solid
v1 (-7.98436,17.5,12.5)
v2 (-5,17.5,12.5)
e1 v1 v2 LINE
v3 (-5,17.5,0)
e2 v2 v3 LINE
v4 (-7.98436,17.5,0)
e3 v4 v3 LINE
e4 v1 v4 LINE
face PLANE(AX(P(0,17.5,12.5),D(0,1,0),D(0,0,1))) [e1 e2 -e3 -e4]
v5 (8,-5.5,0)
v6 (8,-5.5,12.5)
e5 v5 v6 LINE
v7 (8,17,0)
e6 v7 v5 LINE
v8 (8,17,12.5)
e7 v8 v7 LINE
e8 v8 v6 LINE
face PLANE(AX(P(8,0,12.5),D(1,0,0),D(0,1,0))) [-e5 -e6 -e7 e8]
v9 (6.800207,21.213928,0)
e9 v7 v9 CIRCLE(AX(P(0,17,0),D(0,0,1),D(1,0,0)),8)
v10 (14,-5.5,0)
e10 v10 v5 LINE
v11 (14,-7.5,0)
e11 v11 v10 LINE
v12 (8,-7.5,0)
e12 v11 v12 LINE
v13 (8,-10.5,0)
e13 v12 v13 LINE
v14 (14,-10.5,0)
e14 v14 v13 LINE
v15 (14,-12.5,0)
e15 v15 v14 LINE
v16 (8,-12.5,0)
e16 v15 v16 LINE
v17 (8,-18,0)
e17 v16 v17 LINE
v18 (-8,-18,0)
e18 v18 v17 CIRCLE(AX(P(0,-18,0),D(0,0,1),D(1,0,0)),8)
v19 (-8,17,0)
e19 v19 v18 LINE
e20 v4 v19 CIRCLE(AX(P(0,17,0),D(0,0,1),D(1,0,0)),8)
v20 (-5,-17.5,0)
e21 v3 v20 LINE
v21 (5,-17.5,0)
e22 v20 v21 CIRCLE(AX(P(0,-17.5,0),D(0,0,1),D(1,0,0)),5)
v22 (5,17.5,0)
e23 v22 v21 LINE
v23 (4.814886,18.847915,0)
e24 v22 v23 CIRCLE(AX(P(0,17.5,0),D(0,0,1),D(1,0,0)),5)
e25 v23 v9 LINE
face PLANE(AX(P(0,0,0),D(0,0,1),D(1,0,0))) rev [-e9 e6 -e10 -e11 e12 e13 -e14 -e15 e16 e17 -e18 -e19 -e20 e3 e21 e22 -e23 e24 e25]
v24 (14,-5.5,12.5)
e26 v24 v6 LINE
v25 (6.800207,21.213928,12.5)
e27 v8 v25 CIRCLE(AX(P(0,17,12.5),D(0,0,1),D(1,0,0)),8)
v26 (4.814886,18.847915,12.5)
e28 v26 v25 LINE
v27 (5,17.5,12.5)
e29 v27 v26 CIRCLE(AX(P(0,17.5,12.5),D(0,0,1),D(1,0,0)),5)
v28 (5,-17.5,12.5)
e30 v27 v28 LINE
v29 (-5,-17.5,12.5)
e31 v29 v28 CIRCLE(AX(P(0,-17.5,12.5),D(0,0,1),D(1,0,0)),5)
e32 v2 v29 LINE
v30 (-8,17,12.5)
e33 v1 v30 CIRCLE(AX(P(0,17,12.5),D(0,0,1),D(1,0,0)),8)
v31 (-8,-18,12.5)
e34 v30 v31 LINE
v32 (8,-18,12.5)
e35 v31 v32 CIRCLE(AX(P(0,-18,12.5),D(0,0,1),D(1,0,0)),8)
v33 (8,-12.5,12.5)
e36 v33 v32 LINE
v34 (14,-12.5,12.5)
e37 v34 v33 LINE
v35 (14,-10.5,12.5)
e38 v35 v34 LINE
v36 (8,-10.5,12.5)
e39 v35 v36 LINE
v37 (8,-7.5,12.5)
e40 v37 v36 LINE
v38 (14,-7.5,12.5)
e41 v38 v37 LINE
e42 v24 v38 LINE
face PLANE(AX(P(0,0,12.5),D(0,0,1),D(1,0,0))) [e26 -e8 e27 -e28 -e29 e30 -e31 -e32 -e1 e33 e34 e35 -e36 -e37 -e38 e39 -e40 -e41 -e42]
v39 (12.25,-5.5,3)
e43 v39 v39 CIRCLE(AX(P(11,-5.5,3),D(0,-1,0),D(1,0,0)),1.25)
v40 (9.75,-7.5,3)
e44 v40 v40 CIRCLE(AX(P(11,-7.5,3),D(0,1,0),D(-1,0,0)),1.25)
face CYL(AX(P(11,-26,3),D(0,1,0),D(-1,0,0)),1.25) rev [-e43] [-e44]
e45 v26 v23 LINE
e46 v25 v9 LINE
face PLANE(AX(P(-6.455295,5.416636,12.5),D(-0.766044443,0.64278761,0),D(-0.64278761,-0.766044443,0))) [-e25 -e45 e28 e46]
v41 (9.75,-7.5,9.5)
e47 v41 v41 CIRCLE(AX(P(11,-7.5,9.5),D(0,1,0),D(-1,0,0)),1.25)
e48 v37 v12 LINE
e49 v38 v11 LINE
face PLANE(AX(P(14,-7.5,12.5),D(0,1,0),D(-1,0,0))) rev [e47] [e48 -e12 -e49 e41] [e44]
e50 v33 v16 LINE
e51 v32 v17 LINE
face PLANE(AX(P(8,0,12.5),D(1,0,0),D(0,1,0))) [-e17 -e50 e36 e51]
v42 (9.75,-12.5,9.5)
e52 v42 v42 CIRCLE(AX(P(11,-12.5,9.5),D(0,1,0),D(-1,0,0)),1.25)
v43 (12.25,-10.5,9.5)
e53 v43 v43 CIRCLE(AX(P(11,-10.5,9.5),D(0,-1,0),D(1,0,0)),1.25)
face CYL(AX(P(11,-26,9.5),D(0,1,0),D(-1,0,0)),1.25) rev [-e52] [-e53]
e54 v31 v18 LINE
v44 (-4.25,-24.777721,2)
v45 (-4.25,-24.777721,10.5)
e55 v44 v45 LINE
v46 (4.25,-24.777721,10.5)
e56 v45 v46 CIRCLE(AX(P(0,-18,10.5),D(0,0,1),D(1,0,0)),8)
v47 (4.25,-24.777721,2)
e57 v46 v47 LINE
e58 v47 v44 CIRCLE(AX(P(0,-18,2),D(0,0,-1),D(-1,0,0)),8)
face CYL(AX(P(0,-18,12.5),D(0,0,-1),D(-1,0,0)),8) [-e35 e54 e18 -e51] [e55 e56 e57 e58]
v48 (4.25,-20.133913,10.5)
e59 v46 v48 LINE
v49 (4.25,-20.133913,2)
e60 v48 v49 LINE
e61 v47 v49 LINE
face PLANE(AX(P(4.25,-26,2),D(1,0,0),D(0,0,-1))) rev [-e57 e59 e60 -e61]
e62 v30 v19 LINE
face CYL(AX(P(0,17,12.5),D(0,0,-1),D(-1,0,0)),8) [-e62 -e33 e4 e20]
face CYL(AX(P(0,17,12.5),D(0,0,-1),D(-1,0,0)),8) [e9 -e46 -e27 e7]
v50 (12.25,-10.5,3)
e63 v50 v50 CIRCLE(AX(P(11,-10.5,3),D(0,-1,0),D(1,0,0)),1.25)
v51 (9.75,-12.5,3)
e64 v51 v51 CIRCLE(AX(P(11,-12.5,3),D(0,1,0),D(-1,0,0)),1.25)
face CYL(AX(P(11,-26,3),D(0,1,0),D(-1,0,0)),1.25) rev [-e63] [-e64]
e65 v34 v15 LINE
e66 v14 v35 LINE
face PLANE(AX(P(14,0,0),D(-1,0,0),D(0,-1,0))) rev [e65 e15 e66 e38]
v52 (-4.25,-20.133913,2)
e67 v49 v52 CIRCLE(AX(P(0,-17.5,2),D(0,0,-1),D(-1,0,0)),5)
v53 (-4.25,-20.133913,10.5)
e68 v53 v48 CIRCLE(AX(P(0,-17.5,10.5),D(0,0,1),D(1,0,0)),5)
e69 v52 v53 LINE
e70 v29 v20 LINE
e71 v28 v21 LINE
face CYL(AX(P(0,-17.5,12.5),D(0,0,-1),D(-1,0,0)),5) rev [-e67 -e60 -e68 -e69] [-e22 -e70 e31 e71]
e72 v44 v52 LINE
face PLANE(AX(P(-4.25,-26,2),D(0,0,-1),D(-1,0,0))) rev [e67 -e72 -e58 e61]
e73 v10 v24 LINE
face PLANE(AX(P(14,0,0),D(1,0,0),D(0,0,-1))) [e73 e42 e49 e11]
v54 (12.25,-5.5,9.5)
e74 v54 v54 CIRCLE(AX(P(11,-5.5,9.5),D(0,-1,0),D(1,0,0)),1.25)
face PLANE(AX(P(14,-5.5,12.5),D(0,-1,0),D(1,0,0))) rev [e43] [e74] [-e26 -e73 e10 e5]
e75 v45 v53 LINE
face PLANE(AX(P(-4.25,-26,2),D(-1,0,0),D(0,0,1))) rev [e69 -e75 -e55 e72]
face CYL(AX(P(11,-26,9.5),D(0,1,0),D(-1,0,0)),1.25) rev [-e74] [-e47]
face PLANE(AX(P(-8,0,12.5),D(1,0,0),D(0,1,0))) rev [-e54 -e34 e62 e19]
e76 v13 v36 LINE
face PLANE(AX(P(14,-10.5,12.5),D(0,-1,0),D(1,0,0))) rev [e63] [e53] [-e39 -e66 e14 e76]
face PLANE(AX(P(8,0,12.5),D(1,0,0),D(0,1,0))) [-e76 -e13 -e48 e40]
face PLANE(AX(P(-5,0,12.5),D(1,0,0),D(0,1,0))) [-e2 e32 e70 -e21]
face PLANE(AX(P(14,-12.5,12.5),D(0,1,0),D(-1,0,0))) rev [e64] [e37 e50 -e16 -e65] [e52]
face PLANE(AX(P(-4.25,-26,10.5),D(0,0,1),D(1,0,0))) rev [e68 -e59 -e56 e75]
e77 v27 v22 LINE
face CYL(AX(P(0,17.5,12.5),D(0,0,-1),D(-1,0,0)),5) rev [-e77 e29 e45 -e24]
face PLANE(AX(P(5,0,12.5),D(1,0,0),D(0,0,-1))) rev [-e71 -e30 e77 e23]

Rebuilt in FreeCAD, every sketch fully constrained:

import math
import FreeCAD as App
import Part
import Sketcher

V = App.Vector
Q = App.Units.Quantity


def add_polygon(sketch, points):
    """Adds a closed chain of lines whose ends are joined by coincident constraints."""
    first, n = sketch.GeometryCount, len(points)
    for a, b in zip(points, points[1:] + points[:1]):
        sketch.addGeometry(Part.LineSegment(App.Vector(*a, 0), App.Vector(*b, 0)), False)
    for i in range(n):
        sketch.addConstraint(Sketcher.Constraint("Coincident", first + i, 2, first + (i + 1) % n, 1))

doc = App.newDocument("Part")
params = doc.addObject("Spreadsheet::Sheet", "Params")
for row, (alias, value) in enumerate([
    ("sketch1_radius", "8 mm"),
    ("sketch1_radius2", "5 mm"),
    ("sketch1_height", "35 mm"),
    ("pad1_length", "12.5 mm"),
    ("sketch2_width", "2 mm"),
    ("sketch2_height", "12.5 mm"),
    ("pad2_length", "6 mm"),
    ("sketch3_diameter", "2.5 mm"),
    ("sketch4_width", "8.5 mm"),
], start=1):
    params.set(f"A{row}", alias)
    params.set(f"B{row}", "=" + value)
    params.setAlias(f"B{row}", alias)

body = doc.addObject("PartDesign::Body", "Body")

# Sketch on XY plane
sketch1 = doc.addObject("Sketcher::SketchObject", "Sketch")
body.addObject(sketch1)
sketch1.AttachmentSupport = (doc.XY_Plane, [""])
sketch1.MapMode = "FlatFace"
sketch1.addGeometry([
    Part.ArcOfCircle(Part.Circle(V(0, 17, 0), V(0, 0, 1), 8), math.radians(0), math.radians(32)),  # 0
    Part.LineSegment(V(6.8, 21.2, 0), V(4.8, 18.8, 0)),  # 1
    Part.ArcOfCircle(Part.Circle(V(0, 17.5, 0), V(0, 0, 1), 5), math.radians(0), math.radians(15.64)),  # 2
    Part.LineSegment(V(5, 17.5, 0), V(5, -17.5, 0)),  # 3
    Part.ArcOfCircle(Part.Circle(V(0, -17.5, 0), V(0, 0, 1), 5), math.radians(180), math.radians(360)),  # 4
    Part.LineSegment(V(-5, -17.5, 0), V(-5, 17.5, 0)),  # 5
    Part.LineSegment(V(-5, 17.5, 0), V(-8, 17.5, 0)),  # 6
    Part.ArcOfCircle(Part.Circle(V(0, 17, 0), V(0, 0, 1), 8), math.radians(176.42), math.radians(180)),  # 7
    Part.LineSegment(V(-8, 17, 0), V(-8, -18, 0)),  # 8
    Part.ArcOfCircle(Part.Circle(V(0, -18, 0), V(0, 0, 1), 8), math.radians(180), math.radians(360)),  # 9
    Part.LineSegment(V(8, -18, 0), V(8, 17, 0)),  # 10
], False)
sketch1.addConstraint([
    Sketcher.Constraint("Coincident", 0, 2, 1, 1),
    Sketcher.Constraint("Coincident", 1, 2, 2, 2),
    Sketcher.Constraint("Tangent", 2, 1, 3, 1),
    Sketcher.Constraint("Tangent", 3, 2, 4, 2),
    Sketcher.Constraint("Tangent", 4, 1, 5, 1),
    Sketcher.Constraint("Coincident", 5, 2, 6, 1),
    Sketcher.Constraint("Coincident", 6, 2, 7, 1),
    Sketcher.Constraint("Tangent", 7, 2, 8, 1),
    Sketcher.Constraint("Tangent", 8, 2, 9, 1),
    Sketcher.Constraint("Tangent", 9, 2, 10, 1),
    Sketcher.Constraint("Tangent", 10, 2, 0, 1),
    Sketcher.Constraint("Vertical", 3),
    Sketcher.Constraint("Vertical", 5),
    Sketcher.Constraint("Horizontal", 6),
    Sketcher.Constraint("Vertical", 8),
    Sketcher.Constraint("Vertical", 10),
    Sketcher.Constraint("Coincident", 7, 3, 0, 3),
    Sketcher.Constraint("Equal", 2, 4),
    Sketcher.Constraint("Equal", 0, 7),
    Sketcher.Constraint("Symmetric", 2, 3, 4, 3, -1, 1),
    Sketcher.Constraint("PointOnObject", 0, 3, -2),
    Sketcher.Constraint("Horizontal", 2, 1, 5, 2),
    Sketcher.Constraint("Equal", 5, 8),
    Sketcher.Constraint("Radius", 0, Q("8 mm")),
    Sketcher.Constraint("Radius", 2, Q("5 mm")),
    Sketcher.Constraint("DistanceY", 3, 2, 3, 1, Q("35 mm")),
    Sketcher.Constraint("Angle", 1, Q("-130 deg")),
    Sketcher.Constraint("DistanceY", -1, 1, 0, 3, Q("17 mm")),
    Sketcher.Constraint("Distance", 1, Q("3.088611 mm")),
])
sketch1.setExpression("Constraints[23]", "Params.sketch1_radius")
sketch1.setExpression("Constraints[24]", "Params.sketch1_radius2")
sketch1.setExpression("Constraints[25]", "Params.sketch1_height")
pad1 = doc.addObject("PartDesign::Pad", "Pad")
body.addObject(pad1)
pad1.Profile = sketch1
pad1.setExpression("Length", "Params.pad1_length")

# Sketch on YZ plane
sketch2 = doc.addObject("Sketcher::SketchObject", "Sketch001")
body.addObject(sketch2)
sketch2.AttachmentSupport = (doc.YZ_Plane, [""])
sketch2.MapMode = "FlatFace"
sketch2.AttachmentOffset = App.Placement(V(0, 0, 8), App.Rotation())
add_polygon(sketch2, [(-10.5, 12.5), (-12.5, 12.5), (-12.5, 0), (-10.5, 0)])  # lines 0-3
add_polygon(sketch2, [(-5.5, 12.5), (-7.5, 12.5), (-7.5, 0), (-5.5, 0)])  # lines 4-7
sketch2.addConstraint([
    Sketcher.Constraint("Horizontal", 0),
    Sketcher.Constraint("Vertical", 1),
    Sketcher.Constraint("Horizontal", 2),
    Sketcher.Constraint("Vertical", 3),
    Sketcher.Constraint("Horizontal", 4),
    Sketcher.Constraint("Vertical", 5),
    Sketcher.Constraint("Horizontal", 6),
    Sketcher.Constraint("Vertical", 7),
    Sketcher.Constraint("PointOnObject", 1, 2, -1),
    Sketcher.Constraint("PointOnObject", 5, 2, -1),
    Sketcher.Constraint("Horizontal", 3, 2, 4, 2),
    Sketcher.Constraint("Equal", 2, 4),
    Sketcher.Constraint("DistanceX", 0, 2, 0, 1, Q("2 mm")),
    Sketcher.Constraint("DistanceY", 1, 2, 1, 1, Q("12.5 mm")),
    Sketcher.Constraint("DistanceX", 3, 2, 4, 2, Q("3 mm")),
    Sketcher.Constraint("DistanceX", 0, 2, -1, 1, Q("12.5 mm")),
])
sketch2.setExpression("Constraints[20]", "Params.sketch2_width")
sketch2.setExpression("Constraints[21]", "Params.sketch2_height")
pad2 = doc.addObject("PartDesign::Pad", "Pad001")
body.addObject(pad2)
pad2.Profile = sketch2
pad2.setExpression("Length", "Params.pad2_length")

# Sketch on XZ plane
sketch3 = doc.addObject("Sketcher::SketchObject", "Sketch002")
body.addObject(sketch3)
sketch3.AttachmentSupport = (doc.XZ_Plane, [""])
sketch3.MapMode = "FlatFace"
sketch3.AttachmentOffset = App.Placement(V(0, 0, 10.5), App.Rotation())
sketch3.addGeometry([
    Part.Circle(V(11, 3, 0), V(0, 0, 1), 1.2),
    Part.Circle(V(11, 9.5, 0), V(0, 0, 1), 1.2),
], False)
sketch3.addConstraint([
    Sketcher.Constraint("Equal", 0, 1),
    Sketcher.Constraint("Vertical", 0, 3, 1, 3),
    Sketcher.Constraint("Diameter", 0, Q("2.5 mm")),
    Sketcher.Constraint("DistanceX", -1, 1, 0, 3, Q("11 mm")),
    Sketcher.Constraint("DistanceY", -1, 1, 0, 3, Q("3 mm")),
    Sketcher.Constraint("DistanceY", -1, 1, 1, 3, Q("9.5 mm")),
])
sketch3.setExpression("Constraints[2]", "Params.sketch3_diameter")
pocket1 = doc.addObject("PartDesign::Pocket", "Pocket")
body.addObject(pocket1)
pocket1.Profile = sketch3
pocket1.Type = "ThroughAll"
pocket1.Midplane = True

# Sketch on XZ plane
sketch4 = doc.addObject("Sketcher::SketchObject", "Sketch003")
body.addObject(sketch4)
sketch4.AttachmentSupport = (doc.XZ_Plane, [""])
sketch4.MapMode = "FlatFace"
add_polygon(sketch4, [(-4, 2), (-4, 10), (4, 10), (4, 2)])  # lines 0-3
sketch4.addConstraint([
    Sketcher.Constraint("Vertical", 0),
    Sketcher.Constraint("Horizontal", 1),
    Sketcher.Constraint("Vertical", 2),
    Sketcher.Constraint("Horizontal", 3),
    Sketcher.Constraint("Equal", 3, 0),
    Sketcher.Constraint("DistanceX", 1, 1, 1, 2, Q("8.5 mm")),
    Sketcher.Constraint("DistanceY", -1, 1, 2, 2, Q("2 mm")),
    Sketcher.Constraint("DistanceX", 0, 2, -1, 1, Q("4.25 mm")),
])
sketch4.setExpression("Constraints[9]", "Params.sketch4_width")
pocket2 = doc.addObject("PartDesign::Pocket", "Pocket001")
body.addObject(pocket2)
pocket2.Profile = sketch4
pocket2.Type = "ThroughAll"
pocket2.Reversed = True

doc.recompute()
